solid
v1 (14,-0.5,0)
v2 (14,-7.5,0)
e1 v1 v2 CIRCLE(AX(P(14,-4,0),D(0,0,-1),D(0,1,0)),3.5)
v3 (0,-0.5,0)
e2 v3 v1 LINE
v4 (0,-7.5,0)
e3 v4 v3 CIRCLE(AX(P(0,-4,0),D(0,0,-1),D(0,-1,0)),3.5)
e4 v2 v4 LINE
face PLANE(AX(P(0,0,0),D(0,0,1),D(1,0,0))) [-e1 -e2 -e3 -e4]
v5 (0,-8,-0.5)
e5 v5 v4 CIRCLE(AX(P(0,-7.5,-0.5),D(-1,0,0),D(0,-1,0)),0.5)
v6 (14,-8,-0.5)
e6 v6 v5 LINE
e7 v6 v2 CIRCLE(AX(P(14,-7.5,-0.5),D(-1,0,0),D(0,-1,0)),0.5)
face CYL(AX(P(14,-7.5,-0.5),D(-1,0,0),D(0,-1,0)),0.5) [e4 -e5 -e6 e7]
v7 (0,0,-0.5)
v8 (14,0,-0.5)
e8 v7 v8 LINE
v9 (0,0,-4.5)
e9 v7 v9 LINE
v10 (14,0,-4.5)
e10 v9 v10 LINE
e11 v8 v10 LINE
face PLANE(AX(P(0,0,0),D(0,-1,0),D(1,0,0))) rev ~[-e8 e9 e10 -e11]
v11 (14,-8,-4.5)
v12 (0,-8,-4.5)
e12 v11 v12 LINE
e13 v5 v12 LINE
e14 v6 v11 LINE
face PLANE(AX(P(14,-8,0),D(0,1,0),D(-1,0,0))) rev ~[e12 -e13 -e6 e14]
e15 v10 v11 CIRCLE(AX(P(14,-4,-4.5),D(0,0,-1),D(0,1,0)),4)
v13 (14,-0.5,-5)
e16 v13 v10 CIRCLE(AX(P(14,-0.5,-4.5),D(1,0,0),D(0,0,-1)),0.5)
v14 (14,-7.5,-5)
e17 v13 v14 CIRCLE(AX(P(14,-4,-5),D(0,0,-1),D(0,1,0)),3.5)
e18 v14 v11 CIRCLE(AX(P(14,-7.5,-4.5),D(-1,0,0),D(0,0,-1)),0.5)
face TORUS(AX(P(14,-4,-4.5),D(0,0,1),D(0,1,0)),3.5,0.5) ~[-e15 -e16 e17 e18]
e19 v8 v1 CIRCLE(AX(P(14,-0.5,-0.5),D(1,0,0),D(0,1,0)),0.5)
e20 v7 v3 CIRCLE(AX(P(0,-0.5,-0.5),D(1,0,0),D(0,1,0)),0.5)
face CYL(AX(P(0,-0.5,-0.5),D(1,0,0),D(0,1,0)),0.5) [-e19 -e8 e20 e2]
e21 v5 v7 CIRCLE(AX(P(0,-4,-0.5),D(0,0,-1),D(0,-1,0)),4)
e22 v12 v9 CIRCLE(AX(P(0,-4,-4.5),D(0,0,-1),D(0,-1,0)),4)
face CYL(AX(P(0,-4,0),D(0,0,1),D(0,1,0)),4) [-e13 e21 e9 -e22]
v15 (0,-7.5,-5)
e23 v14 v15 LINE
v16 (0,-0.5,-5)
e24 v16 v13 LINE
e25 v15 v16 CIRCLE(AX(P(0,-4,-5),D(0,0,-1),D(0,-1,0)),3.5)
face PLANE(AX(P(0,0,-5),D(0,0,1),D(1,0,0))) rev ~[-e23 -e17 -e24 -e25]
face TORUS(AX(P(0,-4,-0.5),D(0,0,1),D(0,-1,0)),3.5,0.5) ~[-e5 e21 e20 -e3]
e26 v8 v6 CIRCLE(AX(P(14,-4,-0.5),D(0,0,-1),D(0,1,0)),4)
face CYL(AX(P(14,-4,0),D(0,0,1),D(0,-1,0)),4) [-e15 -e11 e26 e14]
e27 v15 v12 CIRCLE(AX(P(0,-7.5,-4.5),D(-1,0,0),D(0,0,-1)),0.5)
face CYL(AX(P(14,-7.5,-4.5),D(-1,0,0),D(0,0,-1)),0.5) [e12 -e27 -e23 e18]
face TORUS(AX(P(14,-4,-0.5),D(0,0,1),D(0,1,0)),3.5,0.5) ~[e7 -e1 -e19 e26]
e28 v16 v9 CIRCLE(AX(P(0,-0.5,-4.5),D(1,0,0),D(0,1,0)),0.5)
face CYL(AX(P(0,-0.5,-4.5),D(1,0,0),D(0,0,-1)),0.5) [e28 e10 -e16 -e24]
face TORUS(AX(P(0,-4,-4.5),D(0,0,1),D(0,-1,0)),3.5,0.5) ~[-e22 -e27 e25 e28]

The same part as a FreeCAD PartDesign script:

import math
import FreeCAD as App
import Part
import Sketcher
from FreeCAD import Vector
Q = App.Units.Quantity


def edges_at(feature, points):
    """Names of the edges that pass closest to the given points."""
    edges = feature.Shape.Edges
    near = lambda p: min(range(len(edges)), key=lambda i: edges[i].distToShape(Part.Vertex(*p))[0])
    return sorted({f"Edge{near(p) + 1}" for p in points})

doc = App.newDocument("Part")
body = doc.addObject("PartDesign::Body", "Body")

sketch1 = body.newObject("Sketcher::SketchObject", "Sketch")
sketch1.AttachmentSupport = (doc.getObject("XY_Plane"), [""])
sketch1.MapMode = "FlatFace"
sketch1.addGeometry(Part.LineSegment(Vector(14, 0, 0), Vector(0, 0, 0)), False)
sketch1.addGeometry(Part.ArcOfCircle(Part.Circle(Vector(0, -4, 0), Vector(0, 0, 1), 4), math.radians(90), math.radians(270)), False)
sketch1.addGeometry(Part.LineSegment(Vector(0, -8, 0), Vector(14, -8, 0)), False)
sketch1.addGeometry(Part.ArcOfCircle(Part.Circle(Vector(14, -4, 0), Vector(0, 0, 1), 4), math.radians(-90), math.radians(90)), False)
sketch1.addConstraint(Sketcher.Constraint("Tangent", 0, 2, 1, 1))
sketch1.addConstraint(Sketcher.Constraint("Tangent", 1, 2, 2, 1))
sketch1.addConstraint(Sketcher.Constraint("Tangent", 2, 2, 3, 1))
sketch1.addConstraint(Sketcher.Constraint("Tangent", 3, 2, 0, 1))
sketch1.addConstraint(Sketcher.Constraint("Horizontal", 0))
sketch1.addConstraint(Sketcher.Constraint("Horizontal", 2))
sketch1.addConstraint(Sketcher.Constraint("Coincident", 0, 2, -1, 1))
sketch1.addConstraint(Sketcher.Constraint("Radius", 1, Q("4 mm")))
sketch1.addConstraint(Sketcher.Constraint("DistanceX", 0, 2, 0, 1, Q("14 mm")))
pad1 = body.newObject("PartDesign::Pad", "Pad")
pad1.Profile = sketch1
pad1.Length = 5
pad1.Reversed = True
doc.recompute()

fillet = body.newObject("PartDesign::Fillet", "Fillet")
fillet.Base = (pad1, edges_at(pad1, [
    (7, 0, 0),
    (-4, -4, 0),
    (7, -8, 0),
    (18, -4, 0),
    (7, -8, -5),
    (-4, -4, -5),
    (7, 0, -5),
    (18, -4, -5),
]))
fillet.Radius = 0.5

doc.recompute()
